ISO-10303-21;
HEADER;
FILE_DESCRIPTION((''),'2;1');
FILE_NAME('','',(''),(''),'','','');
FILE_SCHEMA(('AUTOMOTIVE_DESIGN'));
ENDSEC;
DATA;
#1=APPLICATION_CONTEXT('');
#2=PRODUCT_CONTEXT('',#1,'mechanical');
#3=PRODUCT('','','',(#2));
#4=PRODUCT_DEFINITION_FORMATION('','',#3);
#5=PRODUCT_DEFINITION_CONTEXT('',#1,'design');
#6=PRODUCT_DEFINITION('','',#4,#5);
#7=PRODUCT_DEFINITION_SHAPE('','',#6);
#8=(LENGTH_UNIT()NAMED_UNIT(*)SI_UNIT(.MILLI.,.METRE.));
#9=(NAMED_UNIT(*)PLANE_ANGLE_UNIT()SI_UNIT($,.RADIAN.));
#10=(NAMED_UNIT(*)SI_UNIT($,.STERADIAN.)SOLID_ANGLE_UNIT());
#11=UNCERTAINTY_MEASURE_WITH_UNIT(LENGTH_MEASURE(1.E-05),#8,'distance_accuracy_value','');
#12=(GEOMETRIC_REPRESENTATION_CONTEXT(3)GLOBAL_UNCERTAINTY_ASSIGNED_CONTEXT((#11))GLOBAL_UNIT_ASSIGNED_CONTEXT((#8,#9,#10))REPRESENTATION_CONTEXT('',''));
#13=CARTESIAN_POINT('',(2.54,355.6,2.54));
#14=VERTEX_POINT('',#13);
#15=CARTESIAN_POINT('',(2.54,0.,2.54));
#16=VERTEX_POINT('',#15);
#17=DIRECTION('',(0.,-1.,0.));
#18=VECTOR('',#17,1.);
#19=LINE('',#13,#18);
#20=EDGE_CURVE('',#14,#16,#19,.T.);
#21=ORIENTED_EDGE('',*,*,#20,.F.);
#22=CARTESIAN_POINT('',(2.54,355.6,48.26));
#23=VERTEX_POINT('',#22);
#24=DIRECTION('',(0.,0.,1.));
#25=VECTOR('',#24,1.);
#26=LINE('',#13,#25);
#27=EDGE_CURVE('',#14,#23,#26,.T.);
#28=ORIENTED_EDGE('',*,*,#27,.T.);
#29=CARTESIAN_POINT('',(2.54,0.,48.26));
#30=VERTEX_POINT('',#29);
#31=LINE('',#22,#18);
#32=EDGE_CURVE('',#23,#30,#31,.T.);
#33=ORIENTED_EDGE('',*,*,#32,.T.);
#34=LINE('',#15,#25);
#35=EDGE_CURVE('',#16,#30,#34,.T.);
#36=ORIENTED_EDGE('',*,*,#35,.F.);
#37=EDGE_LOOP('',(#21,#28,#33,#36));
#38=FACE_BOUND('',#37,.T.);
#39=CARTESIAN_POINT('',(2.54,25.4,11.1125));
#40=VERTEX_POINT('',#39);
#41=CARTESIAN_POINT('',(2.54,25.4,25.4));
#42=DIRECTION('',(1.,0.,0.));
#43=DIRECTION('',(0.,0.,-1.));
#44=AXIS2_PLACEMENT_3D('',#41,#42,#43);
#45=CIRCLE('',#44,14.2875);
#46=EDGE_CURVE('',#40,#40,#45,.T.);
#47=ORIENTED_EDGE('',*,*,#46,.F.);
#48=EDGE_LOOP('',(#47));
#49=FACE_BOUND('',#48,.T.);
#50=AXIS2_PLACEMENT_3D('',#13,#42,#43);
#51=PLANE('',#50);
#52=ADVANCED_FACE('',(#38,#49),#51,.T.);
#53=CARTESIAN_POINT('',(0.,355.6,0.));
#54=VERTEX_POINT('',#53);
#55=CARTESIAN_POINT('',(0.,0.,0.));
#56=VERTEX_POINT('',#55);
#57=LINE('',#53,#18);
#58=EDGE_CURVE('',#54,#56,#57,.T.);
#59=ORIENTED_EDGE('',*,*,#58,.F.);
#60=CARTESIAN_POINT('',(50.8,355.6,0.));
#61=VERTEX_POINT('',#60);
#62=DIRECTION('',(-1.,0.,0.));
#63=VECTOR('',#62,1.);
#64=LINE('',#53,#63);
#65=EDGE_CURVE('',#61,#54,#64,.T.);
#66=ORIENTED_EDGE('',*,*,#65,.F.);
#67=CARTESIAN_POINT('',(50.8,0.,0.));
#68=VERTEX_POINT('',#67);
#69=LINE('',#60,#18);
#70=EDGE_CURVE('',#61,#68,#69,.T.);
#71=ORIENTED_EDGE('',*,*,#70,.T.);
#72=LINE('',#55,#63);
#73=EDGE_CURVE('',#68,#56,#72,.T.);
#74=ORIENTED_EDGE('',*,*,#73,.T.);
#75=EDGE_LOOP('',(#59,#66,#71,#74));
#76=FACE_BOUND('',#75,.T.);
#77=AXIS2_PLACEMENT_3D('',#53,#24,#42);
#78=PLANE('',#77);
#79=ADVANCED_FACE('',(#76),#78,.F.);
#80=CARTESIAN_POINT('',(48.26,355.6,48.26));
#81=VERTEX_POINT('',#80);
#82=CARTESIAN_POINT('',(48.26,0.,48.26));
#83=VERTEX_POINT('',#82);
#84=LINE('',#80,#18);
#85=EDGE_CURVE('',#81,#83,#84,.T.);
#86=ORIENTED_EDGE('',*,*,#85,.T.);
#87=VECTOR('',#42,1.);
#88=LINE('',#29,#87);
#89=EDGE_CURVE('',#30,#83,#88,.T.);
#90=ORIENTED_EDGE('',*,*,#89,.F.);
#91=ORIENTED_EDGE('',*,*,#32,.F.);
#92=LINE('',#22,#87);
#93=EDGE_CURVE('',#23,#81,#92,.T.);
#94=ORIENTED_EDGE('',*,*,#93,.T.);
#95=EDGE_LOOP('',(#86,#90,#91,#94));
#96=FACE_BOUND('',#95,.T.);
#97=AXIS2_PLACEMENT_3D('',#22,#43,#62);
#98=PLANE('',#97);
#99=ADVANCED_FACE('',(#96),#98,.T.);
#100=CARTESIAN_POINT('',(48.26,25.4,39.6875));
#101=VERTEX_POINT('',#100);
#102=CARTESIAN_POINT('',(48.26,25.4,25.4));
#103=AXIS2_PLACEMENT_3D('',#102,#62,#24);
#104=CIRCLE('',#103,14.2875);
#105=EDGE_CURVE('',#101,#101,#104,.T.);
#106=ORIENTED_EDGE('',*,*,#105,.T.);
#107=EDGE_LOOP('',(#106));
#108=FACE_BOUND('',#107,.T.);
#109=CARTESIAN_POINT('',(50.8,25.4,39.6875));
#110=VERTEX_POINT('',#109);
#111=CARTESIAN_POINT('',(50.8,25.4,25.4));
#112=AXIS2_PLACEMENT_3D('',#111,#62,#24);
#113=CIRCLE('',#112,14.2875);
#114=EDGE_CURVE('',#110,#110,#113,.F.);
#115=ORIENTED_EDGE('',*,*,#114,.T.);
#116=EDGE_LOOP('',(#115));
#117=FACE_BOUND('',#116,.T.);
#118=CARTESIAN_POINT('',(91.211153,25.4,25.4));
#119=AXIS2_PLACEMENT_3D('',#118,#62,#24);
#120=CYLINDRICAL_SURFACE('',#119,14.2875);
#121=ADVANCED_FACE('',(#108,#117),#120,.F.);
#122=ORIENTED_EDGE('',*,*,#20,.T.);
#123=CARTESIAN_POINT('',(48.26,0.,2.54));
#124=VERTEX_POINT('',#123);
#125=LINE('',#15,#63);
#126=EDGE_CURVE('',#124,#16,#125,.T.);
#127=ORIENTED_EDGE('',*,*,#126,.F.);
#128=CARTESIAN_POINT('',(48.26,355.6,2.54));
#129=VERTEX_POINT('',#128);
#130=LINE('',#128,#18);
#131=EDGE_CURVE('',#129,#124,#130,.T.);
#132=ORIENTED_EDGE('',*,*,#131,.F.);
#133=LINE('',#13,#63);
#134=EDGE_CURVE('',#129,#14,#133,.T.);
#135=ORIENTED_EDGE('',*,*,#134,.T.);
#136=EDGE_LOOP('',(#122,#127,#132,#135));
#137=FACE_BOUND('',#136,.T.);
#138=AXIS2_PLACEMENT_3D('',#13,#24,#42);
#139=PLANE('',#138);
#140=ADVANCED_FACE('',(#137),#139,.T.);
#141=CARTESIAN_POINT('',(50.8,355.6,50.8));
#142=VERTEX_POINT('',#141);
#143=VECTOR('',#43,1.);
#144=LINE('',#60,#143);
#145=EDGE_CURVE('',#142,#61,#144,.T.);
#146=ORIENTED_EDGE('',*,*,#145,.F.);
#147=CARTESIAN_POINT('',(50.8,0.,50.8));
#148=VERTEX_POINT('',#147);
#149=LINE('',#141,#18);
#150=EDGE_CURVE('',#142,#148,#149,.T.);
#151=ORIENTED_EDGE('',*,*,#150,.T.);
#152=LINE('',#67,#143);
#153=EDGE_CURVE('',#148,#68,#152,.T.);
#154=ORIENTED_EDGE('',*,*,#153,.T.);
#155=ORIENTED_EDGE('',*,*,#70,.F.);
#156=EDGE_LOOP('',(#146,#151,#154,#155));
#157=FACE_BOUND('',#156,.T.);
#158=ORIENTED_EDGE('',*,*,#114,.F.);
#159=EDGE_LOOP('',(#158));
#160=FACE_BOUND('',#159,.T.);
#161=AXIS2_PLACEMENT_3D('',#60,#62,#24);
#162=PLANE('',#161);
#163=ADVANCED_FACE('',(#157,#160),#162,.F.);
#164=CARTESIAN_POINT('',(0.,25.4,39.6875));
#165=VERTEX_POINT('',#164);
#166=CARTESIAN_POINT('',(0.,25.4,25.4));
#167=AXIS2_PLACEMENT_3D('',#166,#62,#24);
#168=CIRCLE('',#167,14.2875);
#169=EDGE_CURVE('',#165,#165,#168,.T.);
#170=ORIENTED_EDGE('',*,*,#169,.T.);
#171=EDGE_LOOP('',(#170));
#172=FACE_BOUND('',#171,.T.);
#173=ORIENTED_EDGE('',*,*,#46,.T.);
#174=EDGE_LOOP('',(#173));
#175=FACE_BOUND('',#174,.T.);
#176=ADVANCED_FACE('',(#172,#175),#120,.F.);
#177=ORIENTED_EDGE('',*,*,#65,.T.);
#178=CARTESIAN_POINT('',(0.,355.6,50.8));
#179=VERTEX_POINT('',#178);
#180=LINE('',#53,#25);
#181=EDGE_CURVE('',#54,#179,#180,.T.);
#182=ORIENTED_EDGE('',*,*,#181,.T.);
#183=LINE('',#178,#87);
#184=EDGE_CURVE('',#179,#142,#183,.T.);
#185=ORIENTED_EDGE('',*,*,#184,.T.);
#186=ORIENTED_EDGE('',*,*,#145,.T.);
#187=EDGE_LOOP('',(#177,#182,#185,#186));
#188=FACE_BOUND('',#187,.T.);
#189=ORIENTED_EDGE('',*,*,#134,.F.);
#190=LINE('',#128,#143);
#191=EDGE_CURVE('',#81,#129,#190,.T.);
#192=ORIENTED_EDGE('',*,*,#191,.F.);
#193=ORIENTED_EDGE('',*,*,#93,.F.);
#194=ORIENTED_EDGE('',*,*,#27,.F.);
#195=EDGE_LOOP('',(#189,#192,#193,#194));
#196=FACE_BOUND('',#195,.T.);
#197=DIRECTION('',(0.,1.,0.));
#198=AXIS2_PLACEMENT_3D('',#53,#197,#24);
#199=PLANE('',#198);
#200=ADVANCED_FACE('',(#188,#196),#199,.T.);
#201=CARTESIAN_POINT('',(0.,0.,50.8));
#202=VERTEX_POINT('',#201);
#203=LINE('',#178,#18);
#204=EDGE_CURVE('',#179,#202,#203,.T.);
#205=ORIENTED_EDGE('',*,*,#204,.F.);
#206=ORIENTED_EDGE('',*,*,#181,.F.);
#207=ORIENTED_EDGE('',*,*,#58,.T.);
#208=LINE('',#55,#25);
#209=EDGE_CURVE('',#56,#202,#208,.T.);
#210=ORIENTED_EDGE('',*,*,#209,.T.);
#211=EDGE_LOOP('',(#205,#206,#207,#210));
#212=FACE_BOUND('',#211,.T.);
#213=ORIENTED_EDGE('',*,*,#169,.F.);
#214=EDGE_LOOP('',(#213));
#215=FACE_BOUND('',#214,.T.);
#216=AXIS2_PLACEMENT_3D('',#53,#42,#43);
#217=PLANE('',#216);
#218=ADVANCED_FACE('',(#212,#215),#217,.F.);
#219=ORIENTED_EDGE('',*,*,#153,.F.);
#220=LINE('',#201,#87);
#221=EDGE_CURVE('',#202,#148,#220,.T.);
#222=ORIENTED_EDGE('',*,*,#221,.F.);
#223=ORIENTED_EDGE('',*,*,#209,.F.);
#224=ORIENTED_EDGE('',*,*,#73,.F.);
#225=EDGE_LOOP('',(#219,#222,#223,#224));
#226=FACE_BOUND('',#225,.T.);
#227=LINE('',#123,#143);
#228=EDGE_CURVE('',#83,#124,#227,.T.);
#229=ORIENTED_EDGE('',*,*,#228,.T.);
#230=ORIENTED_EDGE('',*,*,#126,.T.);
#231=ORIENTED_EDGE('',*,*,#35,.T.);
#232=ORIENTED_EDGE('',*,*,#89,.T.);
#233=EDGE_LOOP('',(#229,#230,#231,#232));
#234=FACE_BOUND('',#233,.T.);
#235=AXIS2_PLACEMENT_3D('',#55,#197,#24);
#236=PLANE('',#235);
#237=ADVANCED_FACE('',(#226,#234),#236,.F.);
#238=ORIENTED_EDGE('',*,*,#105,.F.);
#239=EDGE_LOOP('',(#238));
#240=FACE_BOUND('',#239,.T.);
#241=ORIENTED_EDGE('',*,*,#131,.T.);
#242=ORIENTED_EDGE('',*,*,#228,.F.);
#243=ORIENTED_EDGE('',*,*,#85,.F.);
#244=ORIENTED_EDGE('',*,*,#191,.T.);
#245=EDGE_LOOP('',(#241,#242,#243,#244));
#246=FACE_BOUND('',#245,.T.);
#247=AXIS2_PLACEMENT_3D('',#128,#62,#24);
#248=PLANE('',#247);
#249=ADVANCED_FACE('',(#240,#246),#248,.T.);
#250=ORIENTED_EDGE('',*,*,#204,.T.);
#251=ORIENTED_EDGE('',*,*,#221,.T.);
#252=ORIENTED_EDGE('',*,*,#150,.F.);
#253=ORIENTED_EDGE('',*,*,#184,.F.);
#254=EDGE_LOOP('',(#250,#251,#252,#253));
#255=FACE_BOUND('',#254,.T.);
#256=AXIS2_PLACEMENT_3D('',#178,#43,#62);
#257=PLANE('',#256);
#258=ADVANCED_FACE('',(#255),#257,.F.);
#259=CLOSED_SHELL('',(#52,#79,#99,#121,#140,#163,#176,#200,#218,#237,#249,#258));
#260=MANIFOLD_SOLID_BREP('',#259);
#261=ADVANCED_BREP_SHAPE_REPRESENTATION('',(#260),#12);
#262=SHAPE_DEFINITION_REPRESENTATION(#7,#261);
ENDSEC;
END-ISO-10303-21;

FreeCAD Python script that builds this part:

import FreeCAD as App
import Part
import Sketcher

V = App.Vector
Q = App.Units.Quantity

doc = App.newDocument("Part")
params = doc.addObject("Spreadsheet::Sheet", "Params")
for row, (alias, value) in enumerate([
    ("sketch1_width", "2 in"),
    ("sketch1_width2", "1.8 in"),
    ("pad1_length", "14 in"),
    ("sketch2_diameter", "1.125 in"),
    ("pocket1_length", "2 in"),
], start=1):
    params.set(f"A{row}", alias)
    params.set(f"B{row}", "=" + value)
    params.setAlias(f"B{row}", alias)

body = doc.addObject("PartDesign::Body", "Body")

# Sketch on XZ plane
sketch1 = body.newObject("Sketcher::SketchObject", "Sketch")
sketch1.AttachmentSupport = (doc.getObject("XZ_Plane"), [""])
sketch1.MapMode = "FlatFace"
sketch1.addGeometry(Part.LineSegment(V(0, 0, 0), V(0, 51, 0)), False)
sketch1.addGeometry(Part.LineSegment(V(0, 51, 0), V(51, 51, 0)), False)
sketch1.addGeometry(Part.LineSegment(V(51, 51, 0), V(51, 0, 0)), False)
sketch1.addGeometry(Part.LineSegment(V(51, 0, 0), V(0, 0, 0)), False)
sketch1.addGeometry(Part.LineSegment(V(48, 48, 0), V(3, 48, 0)), False)
sketch1.addGeometry(Part.LineSegment(V(3, 48, 0), V(3, 3, 0)), False)
sketch1.addGeometry(Part.LineSegment(V(3, 3, 0), V(48, 3, 0)), False)
sketch1.addGeometry(Part.LineSegment(V(48, 3, 0), V(48, 48, 0)), False)
sketch1.addConstraint(Sketcher.Constraint("Coincident", 0, 2, 1, 1))
sketch1.addConstraint(Sketcher.Constraint("Coincident", 1, 2, 2, 1))
sketch1.addConstraint(Sketcher.Constraint("Coincident", 2, 2, 3, 1))
sketch1.addConstraint(Sketcher.Constraint("Coincident", 3, 2, 0, 1))
sketch1.addConstraint(Sketcher.Constraint("Coincident", 4, 2, 5, 1))
sketch1.addConstraint(Sketcher.Constraint("Coincident", 5, 2, 6, 1))
sketch1.addConstraint(Sketcher.Constraint("Coincident", 6, 2, 7, 1))
sketch1.addConstraint(Sketcher.Constraint("Coincident", 7, 2, 4, 1))
sketch1.addConstraint(Sketcher.Constraint("Vertical", 0))
sketch1.addConstraint(Sketcher.Constraint("Horizontal", 1))
sketch1.addConstraint(Sketcher.Constraint("Vertical", 2))
sketch1.addConstraint(Sketcher.Constraint("Horizontal", 3))
sketch1.addConstraint(Sketcher.Constraint("Horizontal", 4))
sketch1.addConstraint(Sketcher.Constraint("Vertical", 5))
sketch1.addConstraint(Sketcher.Constraint("Horizontal", 6))
sketch1.addConstraint(Sketcher.Constraint("Vertical", 7))
sketch1.addConstraint(Sketcher.Constraint("Coincident", 3, 2, -1, 1))
sketch1.addConstraint(Sketcher.Constraint("Equal", 3, 0))
sketch1.addConstraint(Sketcher.Constraint("Equal", 6, 5))
sketch1.addConstraint(Sketcher.Constraint("DistanceX", 1, 1, 1, 2, Q("2 in")))
sketch1.addConstraint(Sketcher.Constraint("DistanceX", 4, 2, 4, 1, Q("1.8 in")))
sketch1.addConstraint(Sketcher.Constraint("DistanceX", -1, 1, 4, 2, Q("0.1 in")))
sketch1.addConstraint(Sketcher.Constraint("DistanceY", -1, 1, 4, 2, Q("1.9 in")))
sketch1.setExpression("Constraints[19]", "Params.sketch1_width")
sketch1.setExpression("Constraints[20]", "Params.sketch1_width2")
pad1 = body.newObject("PartDesign::Pad", "Pad")
pad1.Profile = sketch1
pad1.setExpression("Length", "Params.pad1_length")
pad1.Reversed = True

# Sketch on YZ plane
sketch2 = body.newObject("Sketcher::SketchObject", "Sketch001")
sketch2.AttachmentSupport = (doc.getObject("YZ_Plane"), [""])
sketch2.MapMode = "FlatFace"
sketch2.addGeometry(Part.Circle(V(25, 25, 0), V(0, 0, 1), 14), False)
sketch2.addConstraint(Sketcher.Constraint("Diameter", 0, Q("1.125 in")))
sketch2.addConstraint(Sketcher.Constraint("DistanceX", -1, 1, 0, 3, Q("1 in")))
sketch2.addConstraint(Sketcher.Constraint("DistanceY", -1, 1, 0, 3, Q("1 in")))
sketch2.setExpression("Constraints[0]", "Params.sketch2_diameter")
pocket1 = body.newObject("PartDesign::Pocket", "Pocket")
pocket1.Profile = sketch2
pocket1.setExpression("Length", "Params.pocket1_length")
pocket1.Reversed = True

doc.recompute()
